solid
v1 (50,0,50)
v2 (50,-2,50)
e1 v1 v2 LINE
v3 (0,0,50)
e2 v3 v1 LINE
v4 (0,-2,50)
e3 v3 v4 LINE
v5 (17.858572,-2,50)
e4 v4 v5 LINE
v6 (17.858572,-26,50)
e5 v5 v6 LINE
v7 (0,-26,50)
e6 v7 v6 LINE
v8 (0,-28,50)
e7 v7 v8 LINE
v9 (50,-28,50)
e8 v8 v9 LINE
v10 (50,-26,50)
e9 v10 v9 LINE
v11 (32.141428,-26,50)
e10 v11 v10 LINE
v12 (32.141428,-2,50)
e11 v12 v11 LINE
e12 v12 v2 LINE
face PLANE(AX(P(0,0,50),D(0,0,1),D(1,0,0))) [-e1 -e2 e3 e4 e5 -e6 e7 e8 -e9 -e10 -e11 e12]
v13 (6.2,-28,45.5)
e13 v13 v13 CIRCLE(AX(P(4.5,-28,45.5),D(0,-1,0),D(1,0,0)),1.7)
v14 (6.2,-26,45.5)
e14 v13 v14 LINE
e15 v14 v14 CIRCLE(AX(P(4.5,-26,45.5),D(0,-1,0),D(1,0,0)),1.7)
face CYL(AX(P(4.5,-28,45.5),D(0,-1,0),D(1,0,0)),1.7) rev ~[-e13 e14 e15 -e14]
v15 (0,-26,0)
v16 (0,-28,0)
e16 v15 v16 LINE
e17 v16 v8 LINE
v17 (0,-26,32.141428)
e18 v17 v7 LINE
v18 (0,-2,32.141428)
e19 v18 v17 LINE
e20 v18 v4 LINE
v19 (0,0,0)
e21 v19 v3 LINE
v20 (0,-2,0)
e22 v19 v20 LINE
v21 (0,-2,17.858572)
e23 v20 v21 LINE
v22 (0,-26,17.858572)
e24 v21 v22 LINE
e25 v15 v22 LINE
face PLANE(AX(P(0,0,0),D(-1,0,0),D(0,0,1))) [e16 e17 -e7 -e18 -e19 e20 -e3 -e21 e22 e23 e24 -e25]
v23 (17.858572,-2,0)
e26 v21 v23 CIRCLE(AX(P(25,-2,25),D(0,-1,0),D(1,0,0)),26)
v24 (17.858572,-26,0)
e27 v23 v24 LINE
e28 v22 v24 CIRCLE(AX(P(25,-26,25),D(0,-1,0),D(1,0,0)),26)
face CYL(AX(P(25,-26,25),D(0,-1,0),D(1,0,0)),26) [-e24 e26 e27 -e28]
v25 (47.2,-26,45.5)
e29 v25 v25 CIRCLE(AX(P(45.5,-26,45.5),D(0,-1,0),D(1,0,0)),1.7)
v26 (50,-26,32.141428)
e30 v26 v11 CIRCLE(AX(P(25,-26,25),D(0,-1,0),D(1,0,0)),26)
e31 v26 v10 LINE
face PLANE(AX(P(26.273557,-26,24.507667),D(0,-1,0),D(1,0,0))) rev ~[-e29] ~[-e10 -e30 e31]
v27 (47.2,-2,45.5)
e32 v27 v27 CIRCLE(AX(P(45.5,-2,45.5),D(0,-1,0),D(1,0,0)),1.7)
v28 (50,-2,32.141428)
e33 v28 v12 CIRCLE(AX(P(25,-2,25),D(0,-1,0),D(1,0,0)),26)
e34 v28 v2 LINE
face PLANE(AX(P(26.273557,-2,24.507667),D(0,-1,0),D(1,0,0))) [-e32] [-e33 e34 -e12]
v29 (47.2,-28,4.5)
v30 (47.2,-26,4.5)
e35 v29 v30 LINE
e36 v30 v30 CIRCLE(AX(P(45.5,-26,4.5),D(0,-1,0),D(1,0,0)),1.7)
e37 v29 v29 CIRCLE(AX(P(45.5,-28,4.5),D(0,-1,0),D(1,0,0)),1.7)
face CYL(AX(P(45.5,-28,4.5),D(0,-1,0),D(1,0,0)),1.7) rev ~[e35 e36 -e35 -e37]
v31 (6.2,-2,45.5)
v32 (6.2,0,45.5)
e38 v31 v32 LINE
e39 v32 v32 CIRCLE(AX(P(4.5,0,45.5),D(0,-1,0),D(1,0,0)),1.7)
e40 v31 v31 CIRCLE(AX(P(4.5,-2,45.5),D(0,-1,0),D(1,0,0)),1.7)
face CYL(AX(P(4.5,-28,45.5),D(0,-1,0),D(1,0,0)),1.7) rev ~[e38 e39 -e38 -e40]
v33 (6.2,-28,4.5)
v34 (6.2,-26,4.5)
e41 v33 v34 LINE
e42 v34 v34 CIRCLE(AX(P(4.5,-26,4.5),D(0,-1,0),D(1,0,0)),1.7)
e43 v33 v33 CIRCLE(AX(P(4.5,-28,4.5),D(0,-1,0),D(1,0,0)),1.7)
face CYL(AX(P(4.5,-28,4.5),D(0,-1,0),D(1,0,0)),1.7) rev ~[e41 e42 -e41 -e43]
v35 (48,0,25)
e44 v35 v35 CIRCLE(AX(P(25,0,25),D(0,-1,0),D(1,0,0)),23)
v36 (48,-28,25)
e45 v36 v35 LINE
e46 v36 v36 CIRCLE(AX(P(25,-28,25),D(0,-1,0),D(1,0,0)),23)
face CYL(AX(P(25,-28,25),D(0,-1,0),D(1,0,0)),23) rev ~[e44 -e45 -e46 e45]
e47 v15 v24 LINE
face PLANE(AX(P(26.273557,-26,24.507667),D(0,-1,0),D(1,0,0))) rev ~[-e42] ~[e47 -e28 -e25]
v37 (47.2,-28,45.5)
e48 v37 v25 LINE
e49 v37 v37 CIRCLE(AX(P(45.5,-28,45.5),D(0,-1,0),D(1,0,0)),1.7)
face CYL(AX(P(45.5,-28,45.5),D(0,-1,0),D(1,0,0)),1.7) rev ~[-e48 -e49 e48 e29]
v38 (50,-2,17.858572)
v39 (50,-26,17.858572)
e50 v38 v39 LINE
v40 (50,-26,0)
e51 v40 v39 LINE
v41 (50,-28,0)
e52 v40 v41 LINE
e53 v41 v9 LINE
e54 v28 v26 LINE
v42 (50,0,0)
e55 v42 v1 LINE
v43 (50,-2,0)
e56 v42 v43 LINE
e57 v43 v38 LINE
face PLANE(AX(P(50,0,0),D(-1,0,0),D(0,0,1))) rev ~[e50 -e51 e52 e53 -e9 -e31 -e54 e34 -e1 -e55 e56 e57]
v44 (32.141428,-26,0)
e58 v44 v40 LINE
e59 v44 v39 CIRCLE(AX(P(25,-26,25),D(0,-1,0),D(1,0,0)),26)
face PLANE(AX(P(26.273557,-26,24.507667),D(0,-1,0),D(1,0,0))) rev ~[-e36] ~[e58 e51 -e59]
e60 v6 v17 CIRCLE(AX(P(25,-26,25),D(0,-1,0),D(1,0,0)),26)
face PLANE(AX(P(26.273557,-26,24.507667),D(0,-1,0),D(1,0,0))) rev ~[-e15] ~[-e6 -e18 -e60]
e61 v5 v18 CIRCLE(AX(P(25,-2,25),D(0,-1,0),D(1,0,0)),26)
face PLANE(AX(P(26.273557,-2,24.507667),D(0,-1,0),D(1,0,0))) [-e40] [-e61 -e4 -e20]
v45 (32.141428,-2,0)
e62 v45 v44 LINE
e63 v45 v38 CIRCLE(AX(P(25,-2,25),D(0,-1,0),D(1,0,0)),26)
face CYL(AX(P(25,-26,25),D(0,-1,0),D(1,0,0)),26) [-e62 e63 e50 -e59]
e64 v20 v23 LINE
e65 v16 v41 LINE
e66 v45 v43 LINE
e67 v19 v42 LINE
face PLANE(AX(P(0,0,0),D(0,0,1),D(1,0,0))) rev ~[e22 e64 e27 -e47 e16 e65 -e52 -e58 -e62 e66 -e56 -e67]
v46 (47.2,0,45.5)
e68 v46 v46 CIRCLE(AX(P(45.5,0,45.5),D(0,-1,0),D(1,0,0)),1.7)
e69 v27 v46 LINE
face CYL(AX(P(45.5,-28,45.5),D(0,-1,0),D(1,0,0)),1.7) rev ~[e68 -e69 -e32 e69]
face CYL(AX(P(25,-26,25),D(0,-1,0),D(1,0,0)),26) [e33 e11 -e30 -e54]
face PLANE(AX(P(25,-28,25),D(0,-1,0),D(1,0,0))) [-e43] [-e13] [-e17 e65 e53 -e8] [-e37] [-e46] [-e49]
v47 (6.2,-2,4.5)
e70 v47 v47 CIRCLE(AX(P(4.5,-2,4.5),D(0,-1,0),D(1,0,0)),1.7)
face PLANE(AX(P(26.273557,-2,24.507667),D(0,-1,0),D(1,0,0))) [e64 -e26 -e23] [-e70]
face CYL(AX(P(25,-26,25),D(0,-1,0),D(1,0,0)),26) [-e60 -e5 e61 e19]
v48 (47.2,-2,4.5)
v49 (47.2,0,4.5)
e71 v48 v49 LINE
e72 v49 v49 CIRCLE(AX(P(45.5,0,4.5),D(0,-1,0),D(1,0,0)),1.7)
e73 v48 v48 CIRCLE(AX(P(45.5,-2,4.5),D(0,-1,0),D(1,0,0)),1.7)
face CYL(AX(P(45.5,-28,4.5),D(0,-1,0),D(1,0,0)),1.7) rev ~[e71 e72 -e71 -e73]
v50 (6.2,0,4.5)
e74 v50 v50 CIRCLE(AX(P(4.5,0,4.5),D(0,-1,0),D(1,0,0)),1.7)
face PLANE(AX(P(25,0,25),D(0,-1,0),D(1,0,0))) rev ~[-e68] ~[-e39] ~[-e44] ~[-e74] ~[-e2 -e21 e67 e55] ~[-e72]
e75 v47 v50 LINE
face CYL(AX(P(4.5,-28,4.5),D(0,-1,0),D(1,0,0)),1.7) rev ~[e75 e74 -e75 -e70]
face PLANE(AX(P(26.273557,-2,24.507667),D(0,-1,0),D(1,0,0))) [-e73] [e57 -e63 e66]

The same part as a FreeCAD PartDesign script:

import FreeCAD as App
import Part
import Sketcher
from FreeCAD import Vector
Q = App.Units.Quantity

doc = App.newDocument("Part")
body = doc.addObject("PartDesign::Body", "Body")

sketch1 = body.newObject("Sketcher::SketchObject", "Sketch")
sketch1.AttachmentSupport = (doc.getObject("XZ_Plane"), [""])
sketch1.MapMode = "FlatFace"
sketch1.addGeometry([
    Part.LineSegment(Vector(0, 50, 0), Vector(0, 0, 0)),
    Part.LineSegment(Vector(0, 0, 0), Vector(50, 0, 0)),
    Part.LineSegment(Vector(50, 0, 0), Vector(50, 50, 0)),
    Part.LineSegment(Vector(50, 50, 0), Vector(0, 50, 0)),
], False)
sketch1.addConstraint([
    Sketcher.Constraint("Coincident", 0, 2, 1, 1),
    Sketcher.Constraint("Coincident", 1, 2, 2, 1),
    Sketcher.Constraint("Coincident", 2, 2, 3, 1),
    Sketcher.Constraint("Coincident", 3, 2, 0, 1),
    Sketcher.Constraint("Vertical", 0),
    Sketcher.Constraint("Horizontal", 1),
    Sketcher.Constraint("Vertical", 2),
    Sketcher.Constraint("Horizontal", 3),
    Sketcher.Constraint("Coincident", 0, 2, -1, 1),
    Sketcher.Constraint("Equal", 3, 0),
    Sketcher.Constraint("DistanceX", 1, 1, 1, 2, Q("50 mm")),
])
pad1 = body.newObject("PartDesign::Pad", "Pad")
pad1.Profile = sketch1
pad1.Length = 28

sketch2 = body.newObject("Sketcher::SketchObject", "Sketch001")
sketch2.AttachmentSupport = (doc.getObject("XZ_Plane"), [""])
sketch2.MapMode = "FlatFace"
sketch2.AttachmentOffset = App.Placement(Vector(0, 0, 28), App.Rotation())
sketch2.addGeometry([
    Part.Circle(Vector(25, 25, 0), Vector(0, 0, 1), 23),
    Part.Circle(Vector(4.5, 45.5, 0), Vector(0, 0, 1), 1.7),
    Part.Circle(Vector(4.5, 4.5, 0), Vector(0, 0, 1), 1.7),
    Part.Circle(Vector(45.5, 4.5, 0), Vector(0, 0, 1), 1.7),
    Part.Circle(Vector(45.5, 45.5, 0), Vector(0, 0, 1), 1.7),
], False)
sketch2.addConstraint([
    Sketcher.Constraint("Equal", 1, 2),
    Sketcher.Constraint("Equal", 2, 3),
    Sketcher.Constraint("Equal", 3, 4),
    Sketcher.Constraint("Horizontal", 2, 3, 3, 3),
    Sketcher.Constraint("Horizontal", 1, 3, 4, 3),
    Sketcher.Constraint("Vertical", 1, 3, 2, 3),
    Sketcher.Constraint("Vertical", 3, 3, 4, 3),
    Sketcher.Constraint("Diameter", 0, Q("46 mm")),
    Sketcher.Constraint("Diameter", 1, Q("3.4 mm")),
    Sketcher.Constraint("DistanceX", -1, 1, 0, 3, Q("25 mm")),
    Sketcher.Constraint("DistanceY", -1, 1, 0, 3, Q("25 mm")),
    Sketcher.Constraint("DistanceY", 2, 3, 1, 3, Q("41 mm")),
    Sketcher.Constraint("DistanceX", 2, 3, 3, 3, Q("41 mm")),
    Sketcher.Constraint("DistanceX", -1, 1, 1, 3, Q("4.5 mm")),
    Sketcher.Constraint("DistanceY", -1, 1, 1, 3, Q("45.5 mm")),
])
pocket1 = body.newObject("PartDesign::Pocket", "Pocket")
pocket1.Profile = sketch2
pocket1.Length = 40

sketch3 = body.newObject("Sketcher::SketchObject", "Sketch002")
sketch3.AttachmentSupport = (doc.getObject("XZ_Plane"), [""])
sketch3.MapMode = "FlatFace"
sketch3.AttachmentOffset = App.Placement(Vector(0, 0, 26), App.Rotation())
sketch3.addGeometry([
    Part.LineSegment(Vector(-11, 58, 0), Vector(-11, -9, 0)),
    Part.LineSegment(Vector(-11, -9, 0), Vector(64, -9, 0)),
    Part.LineSegment(Vector(64, -9, 0), Vector(64, 58, 0)),
    Part.LineSegment(Vector(64, 58, 0), Vector(-11, 58, 0)),
    Part.Circle(Vector(25, 25, 0), Vector(0, 0, 1), 26),
], False)
sketch3.addConstraint([
    Sketcher.Constraint("Coincident", 0, 2, 1, 1),
    Sketcher.Constraint("Coincident", 1, 2, 2, 1),
    Sketcher.Constraint("Coincident", 2, 2, 3, 1),
    Sketcher.Constraint("Coincident", 3, 2, 0, 1),
    Sketcher.Constraint("Vertical", 0),
    Sketcher.Constraint("Horizontal", 1),
    Sketcher.Constraint("Vertical", 2),
    Sketcher.Constraint("Horizontal", 3),
    Sketcher.Constraint("Diameter", 4, Q("52 mm")),
    Sketcher.Constraint("DistanceX", -1, 1, 4, 3, Q("25 mm")),
    Sketcher.Constraint("DistanceY", -1, 1, 4, 3, Q("25 mm")),
    Sketcher.Constraint("DistanceY", 0, 2, 0, 1, Q("67.94658 mm")),
    Sketcher.Constraint("DistanceX", 1, 1, 1, 2, Q("75.459096 mm")),
    Sketcher.Constraint("DistanceX", 0, 2, -1, 1, Q("11.455991 mm")),
    Sketcher.Constraint("DistanceY", 0, 2, -1, 1, Q("9.465623 mm")),
])
pocket2 = body.newObject("PartDesign::Pocket", "Pocket001")
pocket2.Profile = sketch3
pocket2.Length = 24

doc.recompute()
